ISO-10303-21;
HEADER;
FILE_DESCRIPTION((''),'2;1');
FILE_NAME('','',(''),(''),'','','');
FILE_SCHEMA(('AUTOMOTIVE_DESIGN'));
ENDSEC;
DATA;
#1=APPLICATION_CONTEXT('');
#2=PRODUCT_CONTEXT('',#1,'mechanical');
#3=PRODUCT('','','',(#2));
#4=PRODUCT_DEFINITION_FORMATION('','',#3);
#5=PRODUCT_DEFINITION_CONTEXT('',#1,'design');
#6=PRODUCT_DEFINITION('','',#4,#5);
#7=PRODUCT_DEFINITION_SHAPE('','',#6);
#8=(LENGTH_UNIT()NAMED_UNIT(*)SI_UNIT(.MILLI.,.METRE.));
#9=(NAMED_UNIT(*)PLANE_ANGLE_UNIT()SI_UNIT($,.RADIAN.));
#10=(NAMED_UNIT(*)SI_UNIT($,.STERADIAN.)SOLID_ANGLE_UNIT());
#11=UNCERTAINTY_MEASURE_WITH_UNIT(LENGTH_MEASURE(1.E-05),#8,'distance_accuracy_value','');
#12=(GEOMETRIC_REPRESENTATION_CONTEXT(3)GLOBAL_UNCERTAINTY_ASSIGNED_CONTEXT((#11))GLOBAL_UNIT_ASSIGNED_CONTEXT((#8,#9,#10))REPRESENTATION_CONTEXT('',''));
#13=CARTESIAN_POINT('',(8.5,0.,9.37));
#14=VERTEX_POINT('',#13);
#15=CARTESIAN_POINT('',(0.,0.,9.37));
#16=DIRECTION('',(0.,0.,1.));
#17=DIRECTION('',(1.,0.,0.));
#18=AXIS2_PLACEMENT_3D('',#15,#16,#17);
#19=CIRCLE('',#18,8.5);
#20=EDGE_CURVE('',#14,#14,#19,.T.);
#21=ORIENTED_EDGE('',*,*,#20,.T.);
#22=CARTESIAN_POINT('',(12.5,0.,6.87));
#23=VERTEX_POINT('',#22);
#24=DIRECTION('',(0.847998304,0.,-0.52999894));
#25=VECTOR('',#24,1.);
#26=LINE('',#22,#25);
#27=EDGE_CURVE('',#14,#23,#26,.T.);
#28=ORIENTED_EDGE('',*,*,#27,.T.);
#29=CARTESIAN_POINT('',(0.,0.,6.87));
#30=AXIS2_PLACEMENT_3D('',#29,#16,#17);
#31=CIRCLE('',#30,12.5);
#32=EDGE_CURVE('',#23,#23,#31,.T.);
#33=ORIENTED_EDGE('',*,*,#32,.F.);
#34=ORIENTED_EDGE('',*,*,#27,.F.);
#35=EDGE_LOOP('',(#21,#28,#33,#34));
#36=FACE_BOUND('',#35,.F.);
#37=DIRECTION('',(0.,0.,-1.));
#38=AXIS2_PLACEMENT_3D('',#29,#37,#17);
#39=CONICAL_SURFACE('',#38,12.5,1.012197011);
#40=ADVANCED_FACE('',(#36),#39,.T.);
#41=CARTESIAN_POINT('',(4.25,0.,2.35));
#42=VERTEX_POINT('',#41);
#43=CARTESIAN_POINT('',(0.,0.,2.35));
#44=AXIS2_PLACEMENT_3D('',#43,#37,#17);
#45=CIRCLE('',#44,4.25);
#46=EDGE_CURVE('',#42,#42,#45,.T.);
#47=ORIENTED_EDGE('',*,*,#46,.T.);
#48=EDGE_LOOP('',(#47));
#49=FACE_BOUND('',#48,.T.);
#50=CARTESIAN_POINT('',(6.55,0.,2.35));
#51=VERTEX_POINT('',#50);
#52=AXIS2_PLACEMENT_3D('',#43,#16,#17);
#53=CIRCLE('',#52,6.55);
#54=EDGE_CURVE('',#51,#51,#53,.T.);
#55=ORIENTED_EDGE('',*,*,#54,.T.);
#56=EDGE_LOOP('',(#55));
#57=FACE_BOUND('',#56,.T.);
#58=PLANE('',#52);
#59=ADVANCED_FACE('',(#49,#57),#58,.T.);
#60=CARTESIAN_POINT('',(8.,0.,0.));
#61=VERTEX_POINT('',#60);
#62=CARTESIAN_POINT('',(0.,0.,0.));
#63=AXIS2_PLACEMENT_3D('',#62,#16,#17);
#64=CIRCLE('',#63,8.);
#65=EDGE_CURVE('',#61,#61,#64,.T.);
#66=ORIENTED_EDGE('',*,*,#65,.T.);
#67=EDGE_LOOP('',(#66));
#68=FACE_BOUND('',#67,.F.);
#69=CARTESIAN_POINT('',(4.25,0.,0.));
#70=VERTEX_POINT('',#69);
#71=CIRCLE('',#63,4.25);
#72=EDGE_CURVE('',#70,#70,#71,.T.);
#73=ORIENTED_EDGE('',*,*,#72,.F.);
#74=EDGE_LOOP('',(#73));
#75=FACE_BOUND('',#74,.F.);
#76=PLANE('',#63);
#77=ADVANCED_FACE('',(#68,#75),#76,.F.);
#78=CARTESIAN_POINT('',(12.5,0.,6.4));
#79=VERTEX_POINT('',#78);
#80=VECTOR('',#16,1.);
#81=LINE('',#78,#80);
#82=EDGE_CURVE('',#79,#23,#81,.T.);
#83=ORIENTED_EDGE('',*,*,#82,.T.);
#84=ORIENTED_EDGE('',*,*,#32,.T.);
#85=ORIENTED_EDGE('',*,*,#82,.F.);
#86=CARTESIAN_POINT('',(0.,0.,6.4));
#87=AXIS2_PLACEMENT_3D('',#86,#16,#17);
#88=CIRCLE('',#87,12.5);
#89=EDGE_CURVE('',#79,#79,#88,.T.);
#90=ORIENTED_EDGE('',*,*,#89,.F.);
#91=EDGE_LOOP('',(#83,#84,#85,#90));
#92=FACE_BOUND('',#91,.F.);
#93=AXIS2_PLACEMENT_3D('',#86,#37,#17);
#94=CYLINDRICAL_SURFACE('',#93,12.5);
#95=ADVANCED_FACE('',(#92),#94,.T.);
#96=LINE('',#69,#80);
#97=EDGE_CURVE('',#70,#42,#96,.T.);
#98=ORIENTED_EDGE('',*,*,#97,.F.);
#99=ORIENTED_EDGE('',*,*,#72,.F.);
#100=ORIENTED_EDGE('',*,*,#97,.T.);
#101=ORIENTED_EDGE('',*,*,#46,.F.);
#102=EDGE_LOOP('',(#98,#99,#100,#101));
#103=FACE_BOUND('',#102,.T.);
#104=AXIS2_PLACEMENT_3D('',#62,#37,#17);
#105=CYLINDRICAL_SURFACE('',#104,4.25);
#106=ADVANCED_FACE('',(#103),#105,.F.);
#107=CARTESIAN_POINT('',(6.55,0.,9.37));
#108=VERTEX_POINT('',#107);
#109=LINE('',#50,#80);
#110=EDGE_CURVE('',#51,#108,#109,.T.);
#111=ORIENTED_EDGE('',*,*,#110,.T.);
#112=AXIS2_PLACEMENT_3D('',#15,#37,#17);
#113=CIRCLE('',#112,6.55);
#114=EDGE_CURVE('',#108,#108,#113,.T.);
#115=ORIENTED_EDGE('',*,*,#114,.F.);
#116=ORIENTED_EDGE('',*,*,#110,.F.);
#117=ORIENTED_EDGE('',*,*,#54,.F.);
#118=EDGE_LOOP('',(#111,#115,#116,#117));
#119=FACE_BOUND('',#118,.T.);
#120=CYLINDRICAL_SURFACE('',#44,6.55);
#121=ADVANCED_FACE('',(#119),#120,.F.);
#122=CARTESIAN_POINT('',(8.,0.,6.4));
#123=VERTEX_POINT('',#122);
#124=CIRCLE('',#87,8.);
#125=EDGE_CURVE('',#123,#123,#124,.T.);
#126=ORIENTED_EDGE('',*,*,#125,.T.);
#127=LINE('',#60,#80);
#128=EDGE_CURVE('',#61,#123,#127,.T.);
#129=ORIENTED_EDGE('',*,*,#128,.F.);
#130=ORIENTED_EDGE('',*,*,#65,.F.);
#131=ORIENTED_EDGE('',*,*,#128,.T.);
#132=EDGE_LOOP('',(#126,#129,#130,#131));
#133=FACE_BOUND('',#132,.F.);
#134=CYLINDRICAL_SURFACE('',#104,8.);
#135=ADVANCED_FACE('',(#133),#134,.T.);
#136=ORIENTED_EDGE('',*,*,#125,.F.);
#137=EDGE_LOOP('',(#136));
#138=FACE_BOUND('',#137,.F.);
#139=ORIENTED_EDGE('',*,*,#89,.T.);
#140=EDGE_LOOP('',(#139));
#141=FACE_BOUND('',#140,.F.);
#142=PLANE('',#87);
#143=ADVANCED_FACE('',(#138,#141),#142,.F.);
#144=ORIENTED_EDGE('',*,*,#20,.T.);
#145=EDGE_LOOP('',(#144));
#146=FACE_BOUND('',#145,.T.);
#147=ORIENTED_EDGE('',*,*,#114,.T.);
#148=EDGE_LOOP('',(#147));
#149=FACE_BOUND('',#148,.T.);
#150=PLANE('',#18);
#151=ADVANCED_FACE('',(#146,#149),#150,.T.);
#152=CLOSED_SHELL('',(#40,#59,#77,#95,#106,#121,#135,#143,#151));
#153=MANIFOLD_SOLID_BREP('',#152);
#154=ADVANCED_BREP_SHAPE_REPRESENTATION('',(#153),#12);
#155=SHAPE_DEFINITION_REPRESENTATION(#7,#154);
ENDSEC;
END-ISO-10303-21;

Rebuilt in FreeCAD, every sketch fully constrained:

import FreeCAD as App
import Part
import Sketcher
from FreeCAD import Vector
Q = App.Units.Quantity


def edges_at(feature, points):
    """Names of the edges that pass closest to the given points."""
    edges = feature.Shape.Edges
    near = lambda p: min(range(len(edges)), key=lambda i: edges[i].distToShape(Part.Vertex(*p))[0])
    return sorted({f"Edge{near(p) + 1}" for p in points})

doc = App.newDocument("Part")
body = doc.addObject("PartDesign::Body", "Body")

# Sketch on XY plane
sketch1 = body.newObject("Sketcher::SketchObject", "Sketch")
sketch1.AttachmentSupport = (doc.getObject("XY_Plane"), [""])
sketch1.MapMode = "FlatFace"
sketch1.AttachmentOffset = App.Placement(Vector(0, 0, 6.4), App.Rotation())
sketch1.addGeometry(Part.Circle(Vector(0, 0, 0), Vector(0, 0, 1), 12.5), False)
sketch1.addConstraint([
    Sketcher.Constraint("Coincident", 0, 3, -1, 1),
    Sketcher.Constraint("Diameter", 0, Q("25 mm")),
])
pad1 = body.newObject("PartDesign::Pad", "Pad")
pad1.Profile = sketch1
pad1.Length = 2.97

# Sketch on XY plane
sketch2 = body.newObject("Sketcher::SketchObject", "Sketch001")
sketch2.AttachmentSupport = (doc.getObject("XY_Plane"), [""])
sketch2.MapMode = "FlatFace"
sketch2.addGeometry(Part.Circle(Vector(0, 0, 0), Vector(0, 0, 1), 8), False)
sketch2.addConstraint([
    Sketcher.Constraint("Coincident", 0, 3, -1, 1),
    Sketcher.Constraint("Diameter", 0, Q("16 mm")),
])
pad2 = body.newObject("PartDesign::Pad", "Pad001")
pad2.Profile = sketch2
pad2.Type = "UpToLast"
doc.recompute()

chamfer = body.newObject("PartDesign::Chamfer", "Chamfer")
chamfer.Base = (pad2, edges_at(pad2, [(-12.5, 0, 9.37)]))
chamfer.ChamferType = "Two distances"
chamfer.Size = 4
chamfer.Size2 = 2.5
chamfer.FlipDirection = True

# Sketch on XY plane
sketch3 = body.newObject("Sketcher::SketchObject", "Sketch002")
sketch3.AttachmentSupport = (doc.getObject("XY_Plane"), [""])
sketch3.MapMode = "FlatFace"
sketch3.addGeometry(Part.Circle(Vector(0, 0, 0), Vector(0, 0, 1), 4.25), False)
sketch3.addConstraint([
    Sketcher.Constraint("Coincident", 0, 3, -1, 1),
    Sketcher.Constraint("Diameter", 0, Q("8.5 mm")),
])
pocket1 = body.newObject("PartDesign::Pocket", "Pocket")
pocket1.Profile = sketch3
pocket1.Type = "ThroughAll"
pocket1.Reversed = True

# Sketch on XY plane
sketch4 = body.newObject("Sketcher::SketchObject", "Sketch003")
sketch4.AttachmentSupport = (doc.getObject("XY_Plane"), [""])
sketch4.MapMode = "FlatFace"
sketch4.AttachmentOffset = App.Placement(Vector(0, 0, 2.35), App.Rotation())
sketch4.addGeometry(Part.Circle(Vector(0, 0, 0), Vector(0, 0, 1), 6.55), False)
sketch4.addConstraint([
    Sketcher.Constraint("Coincident", 0, 3, -1, 1),
    Sketcher.Constraint("Diameter", 0, Q("13.1 mm")),
])
pocket2 = body.newObject("PartDesign::Pocket", "Pocket001")
pocket2.Profile = sketch4
pocket2.Length = 22.65
pocket2.Reversed = True

doc.recompute()
